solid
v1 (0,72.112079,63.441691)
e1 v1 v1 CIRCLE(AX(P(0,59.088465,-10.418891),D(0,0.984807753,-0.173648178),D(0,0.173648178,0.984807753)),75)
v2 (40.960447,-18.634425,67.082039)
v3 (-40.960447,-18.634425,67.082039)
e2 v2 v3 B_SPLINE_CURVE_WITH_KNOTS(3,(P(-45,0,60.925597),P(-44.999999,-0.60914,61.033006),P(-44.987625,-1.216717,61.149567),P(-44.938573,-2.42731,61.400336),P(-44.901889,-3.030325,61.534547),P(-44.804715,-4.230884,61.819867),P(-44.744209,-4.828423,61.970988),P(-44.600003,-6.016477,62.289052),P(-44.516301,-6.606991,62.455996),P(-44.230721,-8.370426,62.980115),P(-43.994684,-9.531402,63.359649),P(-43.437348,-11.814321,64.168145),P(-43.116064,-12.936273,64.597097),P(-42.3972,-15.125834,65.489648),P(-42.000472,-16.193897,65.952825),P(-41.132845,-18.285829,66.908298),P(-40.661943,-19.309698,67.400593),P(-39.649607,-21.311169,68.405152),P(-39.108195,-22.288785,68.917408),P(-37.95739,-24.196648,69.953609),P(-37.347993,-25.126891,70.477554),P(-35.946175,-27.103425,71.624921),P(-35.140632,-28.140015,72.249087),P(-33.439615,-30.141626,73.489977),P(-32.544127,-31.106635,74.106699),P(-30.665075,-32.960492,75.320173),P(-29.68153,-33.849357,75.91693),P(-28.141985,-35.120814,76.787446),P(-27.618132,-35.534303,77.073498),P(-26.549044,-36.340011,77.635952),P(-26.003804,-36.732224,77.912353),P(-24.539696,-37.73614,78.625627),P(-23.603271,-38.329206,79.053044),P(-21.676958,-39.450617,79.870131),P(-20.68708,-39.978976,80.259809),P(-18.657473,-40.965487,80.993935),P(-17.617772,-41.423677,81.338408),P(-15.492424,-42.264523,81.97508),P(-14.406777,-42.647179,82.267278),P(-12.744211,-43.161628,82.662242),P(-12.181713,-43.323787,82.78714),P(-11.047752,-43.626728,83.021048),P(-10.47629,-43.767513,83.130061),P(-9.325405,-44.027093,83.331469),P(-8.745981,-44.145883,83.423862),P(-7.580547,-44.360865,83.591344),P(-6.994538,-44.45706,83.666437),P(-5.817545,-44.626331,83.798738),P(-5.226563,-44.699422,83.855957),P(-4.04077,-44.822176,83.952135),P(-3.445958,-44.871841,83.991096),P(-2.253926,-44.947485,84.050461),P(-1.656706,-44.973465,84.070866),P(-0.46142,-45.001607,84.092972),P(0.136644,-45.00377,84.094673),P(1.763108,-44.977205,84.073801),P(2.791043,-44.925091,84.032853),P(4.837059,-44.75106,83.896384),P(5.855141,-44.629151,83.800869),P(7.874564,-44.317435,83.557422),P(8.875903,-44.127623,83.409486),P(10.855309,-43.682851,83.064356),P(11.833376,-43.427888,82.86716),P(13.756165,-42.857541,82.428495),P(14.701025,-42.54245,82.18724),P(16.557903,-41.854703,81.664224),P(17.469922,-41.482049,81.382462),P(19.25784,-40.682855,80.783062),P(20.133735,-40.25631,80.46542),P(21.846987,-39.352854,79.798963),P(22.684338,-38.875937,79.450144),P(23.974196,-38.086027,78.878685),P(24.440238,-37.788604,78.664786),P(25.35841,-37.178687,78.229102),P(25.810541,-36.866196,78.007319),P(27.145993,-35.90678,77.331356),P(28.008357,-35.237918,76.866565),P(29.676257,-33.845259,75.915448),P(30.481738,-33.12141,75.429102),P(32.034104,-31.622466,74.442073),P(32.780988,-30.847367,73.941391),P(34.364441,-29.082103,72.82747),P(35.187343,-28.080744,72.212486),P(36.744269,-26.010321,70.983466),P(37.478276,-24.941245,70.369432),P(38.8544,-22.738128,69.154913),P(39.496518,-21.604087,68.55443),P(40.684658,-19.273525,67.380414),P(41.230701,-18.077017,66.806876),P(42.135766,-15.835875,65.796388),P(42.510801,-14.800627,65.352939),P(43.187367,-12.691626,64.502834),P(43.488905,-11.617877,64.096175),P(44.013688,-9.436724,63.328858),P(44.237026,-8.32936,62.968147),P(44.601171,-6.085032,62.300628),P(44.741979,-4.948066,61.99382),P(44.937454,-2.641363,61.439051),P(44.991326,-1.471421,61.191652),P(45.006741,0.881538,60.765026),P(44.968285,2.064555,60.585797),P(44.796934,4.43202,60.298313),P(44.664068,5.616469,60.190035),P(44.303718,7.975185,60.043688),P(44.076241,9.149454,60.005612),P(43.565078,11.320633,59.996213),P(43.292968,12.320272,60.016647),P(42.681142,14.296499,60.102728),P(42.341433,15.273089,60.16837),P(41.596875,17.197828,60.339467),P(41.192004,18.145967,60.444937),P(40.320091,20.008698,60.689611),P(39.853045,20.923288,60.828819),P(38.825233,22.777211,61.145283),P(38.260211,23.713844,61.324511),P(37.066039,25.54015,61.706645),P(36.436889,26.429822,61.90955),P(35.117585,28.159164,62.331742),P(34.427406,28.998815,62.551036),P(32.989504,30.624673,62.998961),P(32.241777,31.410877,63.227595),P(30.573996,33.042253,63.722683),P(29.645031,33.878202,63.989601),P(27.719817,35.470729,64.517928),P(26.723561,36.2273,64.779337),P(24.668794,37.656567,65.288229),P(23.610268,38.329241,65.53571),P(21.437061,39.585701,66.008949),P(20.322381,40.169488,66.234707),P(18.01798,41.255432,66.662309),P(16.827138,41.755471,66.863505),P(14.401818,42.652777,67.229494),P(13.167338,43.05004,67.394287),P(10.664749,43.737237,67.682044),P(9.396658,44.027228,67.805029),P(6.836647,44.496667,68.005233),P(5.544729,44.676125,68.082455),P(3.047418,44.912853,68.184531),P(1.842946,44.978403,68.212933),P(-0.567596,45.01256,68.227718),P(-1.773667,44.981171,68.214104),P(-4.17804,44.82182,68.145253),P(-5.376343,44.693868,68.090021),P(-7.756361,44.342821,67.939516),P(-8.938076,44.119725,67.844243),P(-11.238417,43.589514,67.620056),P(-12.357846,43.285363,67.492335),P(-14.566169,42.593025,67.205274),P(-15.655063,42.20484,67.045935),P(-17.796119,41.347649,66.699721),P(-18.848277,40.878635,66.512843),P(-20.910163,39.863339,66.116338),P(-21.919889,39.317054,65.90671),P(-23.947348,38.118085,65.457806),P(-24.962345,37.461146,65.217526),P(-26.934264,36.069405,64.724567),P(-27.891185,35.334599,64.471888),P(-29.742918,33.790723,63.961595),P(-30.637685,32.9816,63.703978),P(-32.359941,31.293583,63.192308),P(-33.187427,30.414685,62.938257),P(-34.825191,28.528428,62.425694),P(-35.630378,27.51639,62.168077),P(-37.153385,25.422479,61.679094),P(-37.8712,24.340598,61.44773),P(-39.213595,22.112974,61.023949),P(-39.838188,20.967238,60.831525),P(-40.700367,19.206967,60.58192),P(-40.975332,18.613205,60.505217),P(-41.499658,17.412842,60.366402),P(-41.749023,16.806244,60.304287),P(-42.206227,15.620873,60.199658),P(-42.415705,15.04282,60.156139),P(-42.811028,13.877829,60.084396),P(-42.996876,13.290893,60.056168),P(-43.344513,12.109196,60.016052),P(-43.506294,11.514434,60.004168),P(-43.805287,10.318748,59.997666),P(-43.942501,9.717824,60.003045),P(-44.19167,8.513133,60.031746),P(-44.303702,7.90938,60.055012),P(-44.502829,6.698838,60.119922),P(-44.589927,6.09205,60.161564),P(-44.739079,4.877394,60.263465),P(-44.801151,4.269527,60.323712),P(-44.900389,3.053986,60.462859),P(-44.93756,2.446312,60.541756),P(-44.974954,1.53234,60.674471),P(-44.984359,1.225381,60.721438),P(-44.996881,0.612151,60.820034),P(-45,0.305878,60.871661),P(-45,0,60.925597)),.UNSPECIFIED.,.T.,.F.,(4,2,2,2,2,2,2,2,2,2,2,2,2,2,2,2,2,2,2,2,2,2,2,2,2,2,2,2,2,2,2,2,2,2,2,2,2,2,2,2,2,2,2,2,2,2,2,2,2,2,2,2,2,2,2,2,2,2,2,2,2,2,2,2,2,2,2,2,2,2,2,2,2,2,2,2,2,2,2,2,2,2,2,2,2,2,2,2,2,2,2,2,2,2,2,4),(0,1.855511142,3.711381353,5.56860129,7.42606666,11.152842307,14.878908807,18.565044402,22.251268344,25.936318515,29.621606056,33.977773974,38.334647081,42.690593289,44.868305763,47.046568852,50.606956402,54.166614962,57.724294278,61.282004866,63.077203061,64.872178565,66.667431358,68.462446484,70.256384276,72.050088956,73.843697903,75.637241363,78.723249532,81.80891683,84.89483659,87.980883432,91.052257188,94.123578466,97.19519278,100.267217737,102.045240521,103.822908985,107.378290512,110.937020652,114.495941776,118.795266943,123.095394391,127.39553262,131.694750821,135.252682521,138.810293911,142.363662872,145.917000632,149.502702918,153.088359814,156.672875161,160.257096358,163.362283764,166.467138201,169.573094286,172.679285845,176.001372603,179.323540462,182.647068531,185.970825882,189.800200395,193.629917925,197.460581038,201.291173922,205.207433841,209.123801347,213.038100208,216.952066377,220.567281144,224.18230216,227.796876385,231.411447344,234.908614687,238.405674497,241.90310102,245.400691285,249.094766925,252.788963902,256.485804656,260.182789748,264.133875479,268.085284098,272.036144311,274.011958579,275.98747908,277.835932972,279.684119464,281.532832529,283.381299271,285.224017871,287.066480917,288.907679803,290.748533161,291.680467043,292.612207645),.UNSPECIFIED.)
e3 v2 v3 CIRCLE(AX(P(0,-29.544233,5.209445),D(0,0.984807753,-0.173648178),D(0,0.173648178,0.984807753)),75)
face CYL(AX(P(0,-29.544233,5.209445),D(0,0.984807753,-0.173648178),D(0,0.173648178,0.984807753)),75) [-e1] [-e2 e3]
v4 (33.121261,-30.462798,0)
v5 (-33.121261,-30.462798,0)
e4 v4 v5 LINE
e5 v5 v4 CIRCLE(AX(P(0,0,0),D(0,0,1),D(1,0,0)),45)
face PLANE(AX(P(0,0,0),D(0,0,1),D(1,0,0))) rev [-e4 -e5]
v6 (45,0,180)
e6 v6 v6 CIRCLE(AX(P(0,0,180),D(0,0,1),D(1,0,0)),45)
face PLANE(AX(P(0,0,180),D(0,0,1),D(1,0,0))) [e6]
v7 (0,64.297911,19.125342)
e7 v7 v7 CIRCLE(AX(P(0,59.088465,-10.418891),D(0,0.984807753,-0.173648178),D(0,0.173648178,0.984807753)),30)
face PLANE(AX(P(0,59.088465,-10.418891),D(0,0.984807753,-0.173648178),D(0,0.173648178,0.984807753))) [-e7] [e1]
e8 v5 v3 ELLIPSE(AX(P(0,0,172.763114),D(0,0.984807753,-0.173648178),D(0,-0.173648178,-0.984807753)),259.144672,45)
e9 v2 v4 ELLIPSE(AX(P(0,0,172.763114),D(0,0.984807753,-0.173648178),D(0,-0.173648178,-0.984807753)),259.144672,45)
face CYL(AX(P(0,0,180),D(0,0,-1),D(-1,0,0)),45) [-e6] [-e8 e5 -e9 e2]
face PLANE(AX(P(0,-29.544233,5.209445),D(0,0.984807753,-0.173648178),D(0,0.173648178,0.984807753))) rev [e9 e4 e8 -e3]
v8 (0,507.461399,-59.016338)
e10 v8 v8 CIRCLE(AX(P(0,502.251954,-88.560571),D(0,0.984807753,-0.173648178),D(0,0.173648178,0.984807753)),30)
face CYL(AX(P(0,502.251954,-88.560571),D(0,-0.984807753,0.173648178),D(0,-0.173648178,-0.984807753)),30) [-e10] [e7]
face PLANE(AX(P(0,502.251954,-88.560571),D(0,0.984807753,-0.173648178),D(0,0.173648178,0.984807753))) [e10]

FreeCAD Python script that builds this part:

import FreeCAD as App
import Part
import Sketcher
Q = App.Units.Quantity

doc = App.newDocument("Part")
body = doc.addObject("PartDesign::Body", "Body")

# Sketch on XY plane
sketch1 = body.newObject("Sketcher::SketchObject", "Sketch")
sketch1.AttachmentSupport = (doc.getObject("XY_Plane"), [""])
sketch1.MapMode = "FlatFace"
sketch1.addGeometry(Part.Circle(App.Vector(0, 0, 0), App.Vector(0, 0, 1), 45), False)
sketch1.addConstraint([
    Sketcher.Constraint("Coincident", 0, 3, -1, 1),
    Sketcher.Constraint("Diameter", 0, Q("90 mm")),
])
pad1 = body.newObject("PartDesign::Pad", "Pad")
pad1.Profile = sketch1
pad1.Length = 180

# Sketch on an angled plane
sketch2 = body.newObject("Sketcher::SketchObject", "Sketch001")
sketch2.Placement = App.Placement(App.Vector(0, 0, 0), App.Rotation(App.Vector(-1, 0, 0), App.Vector(0, 0.173648178, 0.984807753), App.Vector(0, 0.984807753, -0.173648178), "ZXY"))
sketch2.addGeometry(Part.Circle(App.Vector(0, 0, 0), App.Vector(0, 0, 1), 75), False)
sketch2.addConstraint([
    Sketcher.Constraint("Coincident", 0, 3, -1, 1),
    Sketcher.Constraint("Diameter", 0, Q("150 mm")),
])
pad2 = body.newObject("PartDesign::Pad", "Pad001")
pad2.Profile = sketch2
pad2.Type = "TwoLengths"
pad2.Length = 60
pad2.Length2 = 30

# Sketch on an angled plane
sketch3 = body.newObject("Sketcher::SketchObject", "Sketch002")
sketch3.Placement = App.Placement(App.Vector(0, 59.088465, -10.418891), App.Rotation(App.Vector(1, 0, 0), App.Vector(0, -0.173648178, -0.984807753), App.Vector(0, 0.984807753, -0.173648178), "ZXY"))
sketch3.addGeometry(Part.Circle(App.Vector(0, 0, 0), App.Vector(0, 0, 1), 30), False)
sketch3.addConstraint([
    Sketcher.Constraint("Coincident", 0, 3, -1, 1),
    Sketcher.Constraint("Diameter", 0, Q("60 mm")),
])
pad3 = body.newObject("PartDesign::Pad", "Pad002")
pad3.Profile = sketch3
pad3.Length = 450

doc.recompute()
